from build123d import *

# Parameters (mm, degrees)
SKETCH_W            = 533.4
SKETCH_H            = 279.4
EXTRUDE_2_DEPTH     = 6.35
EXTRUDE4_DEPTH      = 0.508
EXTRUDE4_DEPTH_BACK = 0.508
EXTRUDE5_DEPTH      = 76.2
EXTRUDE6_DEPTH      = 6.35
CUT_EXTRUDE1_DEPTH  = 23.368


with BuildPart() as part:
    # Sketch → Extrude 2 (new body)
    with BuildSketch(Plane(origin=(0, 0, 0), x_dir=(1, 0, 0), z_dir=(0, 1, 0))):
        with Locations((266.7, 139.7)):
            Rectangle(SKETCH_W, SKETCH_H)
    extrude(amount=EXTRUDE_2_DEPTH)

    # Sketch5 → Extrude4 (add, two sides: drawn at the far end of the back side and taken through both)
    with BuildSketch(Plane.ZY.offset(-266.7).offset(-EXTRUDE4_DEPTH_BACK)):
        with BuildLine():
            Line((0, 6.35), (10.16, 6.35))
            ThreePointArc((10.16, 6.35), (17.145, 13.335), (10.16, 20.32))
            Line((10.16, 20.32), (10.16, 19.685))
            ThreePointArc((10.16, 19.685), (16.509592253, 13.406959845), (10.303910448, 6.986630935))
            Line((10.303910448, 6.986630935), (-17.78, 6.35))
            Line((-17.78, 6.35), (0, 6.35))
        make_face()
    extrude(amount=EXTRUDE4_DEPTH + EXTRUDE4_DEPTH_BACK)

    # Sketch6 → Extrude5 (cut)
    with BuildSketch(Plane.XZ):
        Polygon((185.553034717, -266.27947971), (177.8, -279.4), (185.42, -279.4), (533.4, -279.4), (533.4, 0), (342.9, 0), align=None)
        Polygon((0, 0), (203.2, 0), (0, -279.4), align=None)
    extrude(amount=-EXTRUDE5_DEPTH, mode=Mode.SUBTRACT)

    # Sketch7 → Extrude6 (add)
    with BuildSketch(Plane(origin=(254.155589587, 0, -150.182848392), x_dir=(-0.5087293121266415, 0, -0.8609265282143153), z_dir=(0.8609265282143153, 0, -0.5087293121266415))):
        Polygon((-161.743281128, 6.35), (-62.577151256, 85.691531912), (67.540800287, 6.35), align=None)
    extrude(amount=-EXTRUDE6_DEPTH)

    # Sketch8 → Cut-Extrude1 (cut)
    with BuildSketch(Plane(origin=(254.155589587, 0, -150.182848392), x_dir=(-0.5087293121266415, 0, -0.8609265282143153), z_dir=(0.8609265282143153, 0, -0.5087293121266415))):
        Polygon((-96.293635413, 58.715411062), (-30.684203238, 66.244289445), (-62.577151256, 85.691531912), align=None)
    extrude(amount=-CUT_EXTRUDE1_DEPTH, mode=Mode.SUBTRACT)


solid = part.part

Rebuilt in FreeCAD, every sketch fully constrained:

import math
import FreeCAD as App
import Part
import Sketcher

V = App.Vector
Q = App.Units.Quantity

doc = App.newDocument("Part")
params = doc.addObject("Spreadsheet::Sheet", "Params")
for row, (alias, value) in enumerate([
    ("sketch1_width", "21 in"),
    ("sketch1_height", "11 in"),
    ("pad1_length", "0.25 in"),
    ("sketch2_radius", "0.25 in"),
    ("sketch2_height", "1.1 in"),
    ("sketch2_radius2", "0.275 in"),
    ("pad2_length", "0.02 in"),
    ("pad2_length2", "0.02 in"),
    ("sketch3_width", "14 in"),
    ("sketch3_width2", "8 in"),
    ("sketch3_height", "11 in"),
    ("sketch3_width3", "7.5 in"),
    ("sketch3_length", "0.6 in"),
    ("pocket1_length", "3 in"),
    ("sketch4_length", "5 in"),
    ("sketch4_length2", "6 in"),
    ("pad3_length", "0.25 in"),
    ("sketch5_length", "2.6 in"),
    ("sketch5_length2", "1.7 in"),
    ("pocket2_length", "0.92 in"),
], start=1):
    params.set(f"A{row}", alias)
    params.set(f"B{row}", "=" + value)
    params.setAlias(f"B{row}", alias)

body = doc.addObject("PartDesign::Body", "Body")

# Sketch on XZ plane
sketch1 = body.newObject("Sketcher::SketchObject", "Sketch")
sketch1.AttachmentSupport = (doc.getObject("XZ_Plane"), [""])
sketch1.MapMode = "FlatFace"
sketch1.addGeometry(Part.LineSegment(V(0, -279, 0), V(0, 0, 0)), False)
sketch1.addGeometry(Part.LineSegment(V(0, 0, 0), V(533, 0, 0)), False)
sketch1.addGeometry(Part.LineSegment(V(533, 0, 0), V(533, -279, 0)), False)
sketch1.addGeometry(Part.LineSegment(V(533, -279, 0), V(0, -279, 0)), False)
sketch1.addConstraint(Sketcher.Constraint("Coincident", 0, 2, 1, 1))
sketch1.addConstraint(Sketcher.Constraint("Coincident", 1, 2, 2, 1))
sketch1.addConstraint(Sketcher.Constraint("Coincident", 2, 2, 3, 1))
sketch1.addConstraint(Sketcher.Constraint("Coincident", 3, 2, 0, 1))
sketch1.addConstraint(Sketcher.Constraint("Vertical", 0))
sketch1.addConstraint(Sketcher.Constraint("Horizontal", 1))
sketch1.addConstraint(Sketcher.Constraint("Vertical", 2))
sketch1.addConstraint(Sketcher.Constraint("Horizontal", 3))
sketch1.addConstraint(Sketcher.Constraint("Coincident", 0, 2, -1, 1))
sketch1.addConstraint(Sketcher.Constraint("DistanceX", 1, 1, 1, 2, Q("21 in")))
sketch1.addConstraint(Sketcher.Constraint("DistanceY", 0, 1, 0, 2, Q("11 in")))
sketch1.setExpression("Constraints[9]", "Params.sketch1_width")
sketch1.setExpression("Constraints[10]", "Params.sketch1_height")
pad1 = body.newObject("PartDesign::Pad", "Pad")
pad1.Profile = sketch1
pad1.setExpression("Length", "Params.pad1_length")
pad1.Reversed = True

# Sketch on YZ plane
sketch2 = body.newObject("Sketcher::SketchObject", "Sketch001")
sketch2.AttachmentSupport = (doc.getObject("YZ_Plane"), [""])
sketch2.MapMode = "FlatFace"
sketch2.AttachmentOffset = App.Placement(V(0, 0, 10.5 * 25.4), App.Rotation())
sketch2.addGeometry(Part.ArcOfCircle(Part.Circle(V(13.3, 10.2, 0), V(0, 0, 1), 7), math.radians(0), math.radians(180)), False)
sketch2.addGeometry(Part.LineSegment(V(20.3, 10.2, 0), V(19.7, 10.2, 0)), False)
sketch2.addGeometry(Part.ArcOfCircle(Part.Circle(V(13.3, 10.2, 0), V(0, 0, 1), 6.3), math.radians(0), math.radians(179)), False)
sketch2.addGeometry(Part.LineSegment(V(7, 10.3, 0), V(6.3, -17.8, 0)), False)
sketch2.addGeometry(Part.LineSegment(V(6.3, -17.8, 0), V(6.3, 10.2, 0)), False)
sketch2.addConstraint(Sketcher.Constraint("Coincident", 0, 1, 1, 1))
sketch2.addConstraint(Sketcher.Constraint("Coincident", 1, 2, 2, 1))
sketch2.addConstraint(Sketcher.Constraint("Tangent", 2, 2, 3, 1))
sketch2.addConstraint(Sketcher.Constraint("Coincident", 3, 2, 4, 1))
sketch2.addConstraint(Sketcher.Constraint("Tangent", 4, 2, 0, 2))
sketch2.addConstraint(Sketcher.Constraint("Horizontal", 1))
sketch2.addConstraint(Sketcher.Constraint("Vertical", 4))
sketch2.addConstraint(Sketcher.Constraint("Coincident", 2, 3, 0, 3))
sketch2.addConstraint(Sketcher.Constraint("Horizontal", 2, 3, 0, 1))
sketch2.addConstraint(Sketcher.Constraint("Radius", 2, Q("0.25 in")))
sketch2.addConstraint(Sketcher.Constraint("DistanceY", 4, 1, 4, 2, Q("1.1 in")))
sketch2.addConstraint(Sketcher.Constraint("Radius", 0, Q("0.275 in")))
sketch2.addConstraint(Sketcher.Constraint("DistanceY", -1, 1, 0, 3, Q("0.4 in")))
sketch2.addConstraint(Sketcher.Constraint("DistanceX", -1, 1, 0, 1, Q("0.8 in")))
sketch2.setExpression("Constraints[9]", "Params.sketch2_radius")
sketch2.setExpression("Constraints[10]", "Params.sketch2_height")
sketch2.setExpression("Constraints[11]", "Params.sketch2_radius2")
pad2 = body.newObject("PartDesign::Pad", "Pad001")
pad2.Profile = sketch2
pad2.Type = "TwoLengths"
pad2.setExpression("Length", "Params.pad2_length")
pad2.setExpression("Length2", "Params.pad2_length2")
pad2.Reversed = True

# Sketch on XZ plane
sketch3 = body.newObject("Sketcher::SketchObject", "Sketch002")
sketch3.AttachmentSupport = (doc.getObject("XZ_Plane"), [""])
sketch3.MapMode = "FlatFace"
sketch3.addGeometry(Part.LineSegment(V(186, -266, 0), V(178, -279, 0)), False)
sketch3.addGeometry(Part.LineSegment(V(178, -279, 0), V(533, -279, 0)), False)
sketch3.addGeometry(Part.LineSegment(V(533, -279, 0), V(533, 0, 0)), False)
sketch3.addGeometry(Part.LineSegment(V(533, 0, 0), V(343, 0, 0)), False)
sketch3.addGeometry(Part.LineSegment(V(343, 0, 0), V(186, -266, 0)), False)
sketch3.addGeometry(Part.LineSegment(V(203, 0, 0), V(0, 0, 0)), False)
sketch3.addGeometry(Part.LineSegment(V(0, 0, 0), V(0, -279, 0)), False)
sketch3.addGeometry(Part.LineSegment(V(0, -279, 0), V(203, 0, 0)), False)
sketch3.addConstraint(Sketcher.Constraint("Coincident", 0, 2, 1, 1))
sketch3.addConstraint(Sketcher.Constraint("Coincident", 1, 2, 2, 1))
sketch3.addConstraint(Sketcher.Constraint("Coincident", 2, 2, 3, 1))
sketch3.addConstraint(Sketcher.Constraint("Coincident", 3, 2, 4, 1))
sketch3.addConstraint(Sketcher.Constraint("Coincident", 4, 2, 0, 1))
sketch3.addConstraint(Sketcher.Constraint("Coincident", 5, 2, 6, 1))
sketch3.addConstraint(Sketcher.Constraint("Coincident", 6, 2, 7, 1))
sketch3.addConstraint(Sketcher.Constraint("Coincident", 7, 2, 5, 1))
sketch3.addConstraint(Sketcher.Constraint("Horizontal", 1))
sketch3.addConstraint(Sketcher.Constraint("Vertical", 2))
sketch3.addConstraint(Sketcher.Constraint("Horizontal", 3))
sketch3.addConstraint(Sketcher.Constraint("Horizontal", 5))
sketch3.addConstraint(Sketcher.Constraint("Vertical", 6))
sketch3.addConstraint(Sketcher.Constraint("Coincident", 5, 2, -1, 1))
sketch3.addConstraint(Sketcher.Constraint("PointOnObject", 2, 2, -1))
sketch3.addConstraint(Sketcher.Constraint("Parallel", 0, 4))
sketch3.addConstraint(Sketcher.Constraint("Horizontal", 1, 2, 6, 2))
sketch3.addConstraint(Sketcher.Constraint("DistanceX", 1, 1, 1, 2, Q("14 in")))
sketch3.addConstraint(Sketcher.Constraint("DistanceX", 5, 2, 5, 1, Q("8 in")))
sketch3.addConstraint(Sketcher.Constraint("DistanceY", 2, 1, 2, 2, Q("11 in")))
sketch3.addConstraint(Sketcher.Constraint("DistanceX", 3, 2, 3, 1, Q("7.5 in")))
sketch3.addConstraint(Sketcher.Constraint("DistanceX", -1, 1, 0, 2, Q("7 in")))
sketch3.addConstraint(Sketcher.Constraint("Distance", 0, Q("0.6 in")))
sketch3.setExpression("Constraints[17]", "Params.sketch3_width")
sketch3.setExpression("Constraints[18]", "Params.sketch3_width2")
sketch3.setExpression("Constraints[19]", "Params.sketch3_height")
sketch3.setExpression("Constraints[20]", "Params.sketch3_width3")
sketch3.setExpression("Constraints[22]", "Params.sketch3_length")
pocket1 = body.newObject("PartDesign::Pocket", "Pocket")
pocket1.Profile = sketch3
pocket1.setExpression("Length", "Params.pocket1_length")

# Sketch on an angled plane
sketch4 = body.newObject("Sketcher::SketchObject", "Sketch003")
sketch4.Placement = App.Placement(V(254.15559, 0, -150.182848), App.Rotation(V(-0.508729312, 0, -0.860926528), V(0, 1, 0), V(0.860926528, 0, -0.508729312), "ZXY"))
sketch4.addGeometry(Part.LineSegment(V(-63, 86, 0), V(-162, 6, 0)), False)
sketch4.addGeometry(Part.LineSegment(V(-162, 6, 0), V(68, 6, 0)), False)
sketch4.addGeometry(Part.LineSegment(V(68, 6, 0), V(-63, 86, 0)), False)
sketch4.addConstraint(Sketcher.Constraint("Coincident", 0, 2, 1, 1))
sketch4.addConstraint(Sketcher.Constraint("Coincident", 1, 2, 2, 1))
sketch4.addConstraint(Sketcher.Constraint("Coincident", 2, 2, 0, 1))
sketch4.addConstraint(Sketcher.Constraint("Horizontal", 1))
sketch4.addConstraint(Sketcher.Constraint("Distance", 0, Q("5 in")))
sketch4.addConstraint(Sketcher.Constraint("Distance", 2, Q("6 in")))
sketch4.addConstraint(Sketcher.Constraint("DistanceY", -1, 1, 0, 2, Q("0.25 in")))
sketch4.addConstraint(Sketcher.Constraint("DistanceX", 1, 1, 1, 2, 229.284081))
sketch4.addConstraint(Sketcher.Constraint("DistanceX", -1, 1, 1, 2, 67.5408))
sketch4.setExpression("Constraints[4]", "Params.sketch4_length")
sketch4.setExpression("Constraints[5]", "Params.sketch4_length2")
pad3 = body.newObject("PartDesign::Pad", "Pad002")
pad3.Profile = sketch4
pad3.setExpression("Length", "Params.pad3_length")
pad3.Reversed = True

# Sketch on an angled plane
sketch5 = body.newObject("Sketcher::SketchObject", "Sketch004")
sketch5.Placement = App.Placement(V(254.15559, 0, -150.182848), App.Rotation(V(-0.508729312, 0, -0.860926528), V(0, 1, 0), V(0.860926528, 0, -0.508729312), "ZXY"))
sketch5.addGeometry(Part.LineSegment(V(-96, 59, 0), V(-31, 66, 0)), False)
sketch5.addGeometry(Part.LineSegment(V(-31, 66, 0), V(-63, 86, 0)), False)
sketch5.addGeometry(Part.LineSegment(V(-63, 86, 0), V(-96, 59, 0)), False)
sketch5.addConstraint(Sketcher.Constraint("Coincident", 0, 2, 1, 1))
sketch5.addConstraint(Sketcher.Constraint("Coincident", 1, 2, 2, 1))
sketch5.addConstraint(Sketcher.Constraint("Coincident", 2, 2, 0, 1))
sketch5.addConstraint(Sketcher.Constraint("Distance", 0, Q("2.6 in")))
sketch5.addConstraint(Sketcher.Constraint("Distance", 2, Q("1.7 in")))
sketch5.addConstraint(Sketcher.Constraint("DistanceY", -1, 1, 0, 2, 66.244289))
sketch5.addConstraint(Sketcher.Constraint("DistanceX", 1, 2, -1, 1, 62.577151))
sketch5.addConstraint(Sketcher.Constraint("DistanceY", -1, 1, 1, 2, 85.691532))
sketch5.addConstraint(Sketcher.Constraint("DistanceY", -1, 1, 2, 2, 58.715411))
sketch5.setExpression("Constraints[3]", "Params.sketch5_length")
sketch5.setExpression("Constraints[4]", "Params.sketch5_length2")
pocket2 = body.newObject("PartDesign::Pocket", "Pocket001")
pocket2.Profile = sketch5
pocket2.setExpression("Length", "Params.pocket2_length")

doc.recompute()
